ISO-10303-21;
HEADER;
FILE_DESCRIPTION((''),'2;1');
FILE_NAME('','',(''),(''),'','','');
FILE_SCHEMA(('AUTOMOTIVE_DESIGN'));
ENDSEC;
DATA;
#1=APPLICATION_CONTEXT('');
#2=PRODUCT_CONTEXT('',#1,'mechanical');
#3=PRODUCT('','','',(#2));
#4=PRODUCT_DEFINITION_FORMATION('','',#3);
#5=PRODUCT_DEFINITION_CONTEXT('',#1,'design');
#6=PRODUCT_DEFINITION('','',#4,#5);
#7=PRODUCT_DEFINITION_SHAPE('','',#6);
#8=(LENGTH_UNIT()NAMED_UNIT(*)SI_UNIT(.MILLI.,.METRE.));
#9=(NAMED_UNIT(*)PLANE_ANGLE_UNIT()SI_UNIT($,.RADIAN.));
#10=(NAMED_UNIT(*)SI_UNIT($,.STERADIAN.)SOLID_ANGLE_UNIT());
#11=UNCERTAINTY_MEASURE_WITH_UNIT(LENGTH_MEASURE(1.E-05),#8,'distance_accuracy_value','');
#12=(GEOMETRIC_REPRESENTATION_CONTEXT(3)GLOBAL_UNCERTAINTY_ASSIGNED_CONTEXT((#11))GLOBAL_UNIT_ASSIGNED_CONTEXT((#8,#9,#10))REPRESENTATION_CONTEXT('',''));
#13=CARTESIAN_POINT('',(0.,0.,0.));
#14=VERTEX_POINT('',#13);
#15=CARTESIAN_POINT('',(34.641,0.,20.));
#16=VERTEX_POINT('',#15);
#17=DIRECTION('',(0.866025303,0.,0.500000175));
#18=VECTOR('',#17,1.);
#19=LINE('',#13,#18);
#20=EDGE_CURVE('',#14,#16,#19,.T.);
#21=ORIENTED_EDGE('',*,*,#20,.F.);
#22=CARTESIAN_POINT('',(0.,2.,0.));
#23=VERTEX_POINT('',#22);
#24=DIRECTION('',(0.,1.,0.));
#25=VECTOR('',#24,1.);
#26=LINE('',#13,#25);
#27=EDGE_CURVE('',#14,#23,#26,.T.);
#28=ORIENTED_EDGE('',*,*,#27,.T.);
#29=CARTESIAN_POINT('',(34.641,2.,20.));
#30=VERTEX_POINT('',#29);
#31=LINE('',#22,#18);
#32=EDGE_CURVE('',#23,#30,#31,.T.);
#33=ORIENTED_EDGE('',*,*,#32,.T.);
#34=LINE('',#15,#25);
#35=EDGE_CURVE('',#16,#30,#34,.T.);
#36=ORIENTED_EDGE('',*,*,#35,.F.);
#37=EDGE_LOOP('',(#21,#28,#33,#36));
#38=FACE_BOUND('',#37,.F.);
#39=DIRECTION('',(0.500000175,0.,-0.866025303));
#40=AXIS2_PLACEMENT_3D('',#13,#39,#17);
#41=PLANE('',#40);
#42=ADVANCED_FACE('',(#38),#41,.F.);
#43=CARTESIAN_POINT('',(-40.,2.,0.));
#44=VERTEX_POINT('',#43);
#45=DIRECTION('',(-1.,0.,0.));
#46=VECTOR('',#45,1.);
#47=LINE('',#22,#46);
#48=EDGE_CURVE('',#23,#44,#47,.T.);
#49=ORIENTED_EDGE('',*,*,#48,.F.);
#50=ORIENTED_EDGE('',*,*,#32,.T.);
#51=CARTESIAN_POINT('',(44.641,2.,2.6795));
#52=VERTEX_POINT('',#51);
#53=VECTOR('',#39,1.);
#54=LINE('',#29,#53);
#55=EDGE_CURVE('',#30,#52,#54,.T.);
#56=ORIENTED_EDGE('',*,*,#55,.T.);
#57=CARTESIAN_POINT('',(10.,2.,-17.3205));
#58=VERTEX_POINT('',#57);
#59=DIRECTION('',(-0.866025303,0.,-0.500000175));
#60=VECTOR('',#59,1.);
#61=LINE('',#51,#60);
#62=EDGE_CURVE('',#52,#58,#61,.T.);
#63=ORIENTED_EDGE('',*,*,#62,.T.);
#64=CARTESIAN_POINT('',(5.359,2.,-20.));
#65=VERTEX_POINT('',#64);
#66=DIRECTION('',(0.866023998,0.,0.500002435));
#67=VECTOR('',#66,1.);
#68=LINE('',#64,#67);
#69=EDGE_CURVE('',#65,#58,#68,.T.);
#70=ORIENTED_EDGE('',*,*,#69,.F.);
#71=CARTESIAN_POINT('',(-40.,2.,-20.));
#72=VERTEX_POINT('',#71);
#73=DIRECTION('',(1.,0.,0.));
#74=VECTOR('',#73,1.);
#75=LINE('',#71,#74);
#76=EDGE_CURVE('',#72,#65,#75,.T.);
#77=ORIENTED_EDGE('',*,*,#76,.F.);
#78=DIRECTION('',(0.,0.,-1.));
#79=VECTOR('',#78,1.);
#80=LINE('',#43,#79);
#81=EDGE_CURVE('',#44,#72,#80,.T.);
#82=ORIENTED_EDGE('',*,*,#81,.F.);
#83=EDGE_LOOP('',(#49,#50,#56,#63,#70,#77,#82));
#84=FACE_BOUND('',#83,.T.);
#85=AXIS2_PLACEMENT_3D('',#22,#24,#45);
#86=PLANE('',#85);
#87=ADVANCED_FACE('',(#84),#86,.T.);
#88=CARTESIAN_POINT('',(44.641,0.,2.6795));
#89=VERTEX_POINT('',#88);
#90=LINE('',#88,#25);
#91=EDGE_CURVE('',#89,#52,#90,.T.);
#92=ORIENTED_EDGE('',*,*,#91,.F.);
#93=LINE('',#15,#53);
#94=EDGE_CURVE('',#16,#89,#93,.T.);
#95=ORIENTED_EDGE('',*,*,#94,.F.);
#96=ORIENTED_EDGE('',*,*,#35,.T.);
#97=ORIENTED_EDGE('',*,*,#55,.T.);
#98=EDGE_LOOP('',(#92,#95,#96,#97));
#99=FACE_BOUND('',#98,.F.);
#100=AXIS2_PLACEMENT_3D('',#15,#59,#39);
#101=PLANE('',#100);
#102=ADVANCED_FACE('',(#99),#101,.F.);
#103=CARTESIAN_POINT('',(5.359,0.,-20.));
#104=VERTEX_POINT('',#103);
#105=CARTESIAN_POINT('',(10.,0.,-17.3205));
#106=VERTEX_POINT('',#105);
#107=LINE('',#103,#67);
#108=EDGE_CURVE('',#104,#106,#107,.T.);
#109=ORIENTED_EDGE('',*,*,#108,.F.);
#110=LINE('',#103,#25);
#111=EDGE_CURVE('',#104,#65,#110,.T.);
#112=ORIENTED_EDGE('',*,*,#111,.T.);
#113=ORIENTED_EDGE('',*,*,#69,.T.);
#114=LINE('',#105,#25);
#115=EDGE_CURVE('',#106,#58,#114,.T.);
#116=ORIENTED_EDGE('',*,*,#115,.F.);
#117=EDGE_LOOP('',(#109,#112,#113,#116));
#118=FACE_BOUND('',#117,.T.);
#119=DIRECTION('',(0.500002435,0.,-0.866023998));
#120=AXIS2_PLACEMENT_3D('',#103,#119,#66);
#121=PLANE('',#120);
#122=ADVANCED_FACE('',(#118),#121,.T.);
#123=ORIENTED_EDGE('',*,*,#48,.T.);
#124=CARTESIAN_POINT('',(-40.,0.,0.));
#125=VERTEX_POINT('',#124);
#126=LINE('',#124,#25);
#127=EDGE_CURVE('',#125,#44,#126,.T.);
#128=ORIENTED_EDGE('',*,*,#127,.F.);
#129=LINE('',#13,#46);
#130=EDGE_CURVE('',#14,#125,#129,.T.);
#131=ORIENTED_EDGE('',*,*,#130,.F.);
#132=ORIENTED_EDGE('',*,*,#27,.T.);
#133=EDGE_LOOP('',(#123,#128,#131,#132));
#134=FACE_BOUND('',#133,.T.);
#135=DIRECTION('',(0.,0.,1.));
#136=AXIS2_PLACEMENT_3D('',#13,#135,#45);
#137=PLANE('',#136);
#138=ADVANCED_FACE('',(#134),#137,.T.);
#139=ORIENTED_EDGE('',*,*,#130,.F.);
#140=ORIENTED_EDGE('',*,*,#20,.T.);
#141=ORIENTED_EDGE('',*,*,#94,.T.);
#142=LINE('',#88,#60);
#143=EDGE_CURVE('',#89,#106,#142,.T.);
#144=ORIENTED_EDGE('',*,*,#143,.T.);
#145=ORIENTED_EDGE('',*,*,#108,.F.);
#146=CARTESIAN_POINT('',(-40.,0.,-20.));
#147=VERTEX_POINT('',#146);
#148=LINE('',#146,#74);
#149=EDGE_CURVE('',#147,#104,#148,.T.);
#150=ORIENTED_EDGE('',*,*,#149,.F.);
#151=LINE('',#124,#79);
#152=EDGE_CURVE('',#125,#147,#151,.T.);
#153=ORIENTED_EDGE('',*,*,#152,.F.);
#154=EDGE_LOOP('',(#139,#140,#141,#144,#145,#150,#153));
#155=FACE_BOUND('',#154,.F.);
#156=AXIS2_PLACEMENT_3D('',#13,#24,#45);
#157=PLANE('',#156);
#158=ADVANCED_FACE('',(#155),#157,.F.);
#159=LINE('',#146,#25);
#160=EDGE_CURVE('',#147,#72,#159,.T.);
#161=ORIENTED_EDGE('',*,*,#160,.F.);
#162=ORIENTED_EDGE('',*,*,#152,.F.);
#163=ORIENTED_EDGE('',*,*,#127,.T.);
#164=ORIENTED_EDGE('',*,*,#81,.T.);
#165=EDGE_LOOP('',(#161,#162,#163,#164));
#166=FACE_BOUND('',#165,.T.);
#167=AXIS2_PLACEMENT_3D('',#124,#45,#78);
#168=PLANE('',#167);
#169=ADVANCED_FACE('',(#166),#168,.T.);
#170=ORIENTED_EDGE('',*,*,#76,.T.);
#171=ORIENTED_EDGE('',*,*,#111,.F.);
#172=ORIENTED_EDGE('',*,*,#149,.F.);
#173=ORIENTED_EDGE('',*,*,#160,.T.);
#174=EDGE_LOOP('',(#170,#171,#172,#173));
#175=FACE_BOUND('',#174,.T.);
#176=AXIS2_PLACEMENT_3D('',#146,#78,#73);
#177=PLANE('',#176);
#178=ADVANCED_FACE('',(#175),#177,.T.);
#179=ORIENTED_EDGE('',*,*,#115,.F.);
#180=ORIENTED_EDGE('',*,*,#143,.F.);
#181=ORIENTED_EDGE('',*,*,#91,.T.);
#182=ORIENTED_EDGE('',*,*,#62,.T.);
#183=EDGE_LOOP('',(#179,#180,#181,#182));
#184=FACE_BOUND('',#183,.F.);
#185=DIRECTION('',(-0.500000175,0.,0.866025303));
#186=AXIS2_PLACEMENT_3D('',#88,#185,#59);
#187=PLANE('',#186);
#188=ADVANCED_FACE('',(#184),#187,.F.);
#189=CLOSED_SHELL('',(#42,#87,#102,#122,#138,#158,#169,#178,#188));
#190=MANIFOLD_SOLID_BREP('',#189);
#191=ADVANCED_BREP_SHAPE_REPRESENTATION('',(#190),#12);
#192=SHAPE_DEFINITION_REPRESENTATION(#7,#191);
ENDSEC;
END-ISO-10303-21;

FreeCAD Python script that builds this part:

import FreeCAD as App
import Part
import Sketcher
Q = App.Units.Quantity

doc = App.newDocument("Part")
body = doc.addObject("PartDesign::Body", "Body")

sketch1 = doc.addObject("Sketcher::SketchObject", "Sketch")
body.addObject(sketch1)
sketch1.AttachmentSupport = (doc.XZ_Plane, [""])
sketch1.MapMode = "FlatFace"
sketch1.addGeometry(Part.LineSegment(App.Vector(-40, 0, 0), App.Vector(0, 0, 0)), False)
sketch1.addGeometry(Part.LineSegment(App.Vector(0, 0, 0), App.Vector(35, 20, 0)), False)
sketch1.addGeometry(Part.LineSegment(App.Vector(35, 20, 0), App.Vector(45, 3, 0)), False)
sketch1.addGeometry(Part.LineSegment(App.Vector(45, 3, 0), App.Vector(10, -17, 0)), False)
sketch1.addGeometry(Part.LineSegment(App.Vector(10, -17, 0), App.Vector(5, -20, 0)), False)
sketch1.addGeometry(Part.LineSegment(App.Vector(5, -20, 0), App.Vector(-40, -20, 0)), False)
sketch1.addGeometry(Part.LineSegment(App.Vector(-40, -20, 0), App.Vector(-40, 0, 0)), False)
sketch1.addConstraint(Sketcher.Constraint("Coincident", 0, 2, 1, 1))
sketch1.addConstraint(Sketcher.Constraint("Coincident", 1, 2, 2, 1))
sketch1.addConstraint(Sketcher.Constraint("Coincident", 2, 2, 3, 1))
sketch1.addConstraint(Sketcher.Constraint("Coincident", 3, 2, 4, 1))
sketch1.addConstraint(Sketcher.Constraint("Coincident", 4, 2, 5, 1))
sketch1.addConstraint(Sketcher.Constraint("Coincident", 5, 2, 6, 1))
sketch1.addConstraint(Sketcher.Constraint("Coincident", 6, 2, 0, 1))
sketch1.addConstraint(Sketcher.Constraint("Horizontal", 0))
sketch1.addConstraint(Sketcher.Constraint("Horizontal", 5))
sketch1.addConstraint(Sketcher.Constraint("Vertical", 6))
sketch1.addConstraint(Sketcher.Constraint("Coincident", 0, 2, -1, 1))
sketch1.addConstraint(Sketcher.Constraint("Perpendicular", 1, 2))
sketch1.addConstraint(Sketcher.Constraint("Perpendicular", 2, 3))
sketch1.addConstraint(Sketcher.Constraint("Parallel", 3, 4))
sketch1.addConstraint(Sketcher.Constraint("Equal", 1, 3))
sketch1.addConstraint(Sketcher.Constraint("DistanceX", 0, 1, 0, 2, 40.0))
sketch1.addConstraint(Sketcher.Constraint("DistanceY", 6, 1, 6, 2, 20.0))
sketch1.addConstraint(Sketcher.Constraint("Angle", 3, Q("-150 deg")))
sketch1.addConstraint(Sketcher.Constraint("Distance", 1, 40.0))
sketch1.addConstraint(Sketcher.Constraint("Distance", 2, 20.0))
pad1 = doc.addObject("PartDesign::Pad", "Pad")
body.addObject(pad1)
pad1.Profile = sketch1
pad1.Length = 2
pad1.Reversed = True

doc.recompute()
